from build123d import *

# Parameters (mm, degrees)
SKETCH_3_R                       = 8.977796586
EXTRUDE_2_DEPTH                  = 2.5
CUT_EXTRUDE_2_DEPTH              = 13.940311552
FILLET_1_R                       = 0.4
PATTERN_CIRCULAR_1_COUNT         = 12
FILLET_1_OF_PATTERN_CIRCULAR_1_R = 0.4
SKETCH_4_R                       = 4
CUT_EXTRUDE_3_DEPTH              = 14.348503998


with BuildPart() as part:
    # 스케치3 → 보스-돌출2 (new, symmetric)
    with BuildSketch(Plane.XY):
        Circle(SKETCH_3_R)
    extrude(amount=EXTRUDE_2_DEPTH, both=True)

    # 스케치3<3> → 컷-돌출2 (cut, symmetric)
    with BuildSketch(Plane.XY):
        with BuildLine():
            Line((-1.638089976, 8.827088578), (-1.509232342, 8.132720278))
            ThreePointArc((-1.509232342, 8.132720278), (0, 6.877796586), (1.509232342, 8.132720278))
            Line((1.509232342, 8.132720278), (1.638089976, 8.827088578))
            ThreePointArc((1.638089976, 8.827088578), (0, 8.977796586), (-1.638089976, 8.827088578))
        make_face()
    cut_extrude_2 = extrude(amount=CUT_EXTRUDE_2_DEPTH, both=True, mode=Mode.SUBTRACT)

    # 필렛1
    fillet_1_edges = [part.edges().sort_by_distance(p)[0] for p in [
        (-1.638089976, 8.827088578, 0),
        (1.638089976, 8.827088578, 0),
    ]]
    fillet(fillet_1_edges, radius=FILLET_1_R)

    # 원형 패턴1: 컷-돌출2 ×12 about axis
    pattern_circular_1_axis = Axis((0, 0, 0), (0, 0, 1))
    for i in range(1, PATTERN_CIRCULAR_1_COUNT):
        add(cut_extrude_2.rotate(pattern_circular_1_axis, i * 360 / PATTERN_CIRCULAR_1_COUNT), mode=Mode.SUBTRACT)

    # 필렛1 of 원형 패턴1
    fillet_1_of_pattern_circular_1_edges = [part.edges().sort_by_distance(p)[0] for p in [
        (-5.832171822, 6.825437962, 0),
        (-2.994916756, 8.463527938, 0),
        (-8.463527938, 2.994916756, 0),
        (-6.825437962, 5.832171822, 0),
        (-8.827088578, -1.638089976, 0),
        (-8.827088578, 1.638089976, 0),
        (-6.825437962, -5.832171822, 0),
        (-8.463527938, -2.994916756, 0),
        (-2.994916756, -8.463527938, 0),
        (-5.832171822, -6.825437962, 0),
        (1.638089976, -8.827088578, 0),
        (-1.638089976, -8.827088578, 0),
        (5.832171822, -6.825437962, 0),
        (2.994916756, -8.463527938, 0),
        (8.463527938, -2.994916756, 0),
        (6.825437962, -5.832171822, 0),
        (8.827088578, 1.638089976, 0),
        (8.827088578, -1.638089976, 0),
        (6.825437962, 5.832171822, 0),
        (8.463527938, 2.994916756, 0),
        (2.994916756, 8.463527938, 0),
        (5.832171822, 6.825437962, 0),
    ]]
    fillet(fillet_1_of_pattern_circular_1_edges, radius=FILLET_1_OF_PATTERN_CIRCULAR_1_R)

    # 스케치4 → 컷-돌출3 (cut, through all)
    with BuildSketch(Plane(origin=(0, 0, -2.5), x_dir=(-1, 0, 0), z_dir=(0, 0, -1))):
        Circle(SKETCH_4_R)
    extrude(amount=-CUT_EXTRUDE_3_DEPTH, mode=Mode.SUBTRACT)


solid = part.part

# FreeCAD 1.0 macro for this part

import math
import FreeCAD as App
import Part
import Sketcher
Q = App.Units.Quantity


def edges_at(feature, points):
    """Names of the edges that pass closest to the given points."""
    edges = feature.Shape.Edges
    near = lambda p: min(range(len(edges)), key=lambda i: edges[i].distToShape(Part.Vertex(*p))[0])
    return sorted({f"Edge{near(p) + 1}" for p in points})

doc = App.newDocument("Part")
body = doc.addObject("PartDesign::Body", "Body")

sketch1 = body.newObject("Sketcher::SketchObject", "Sketch")
sketch1.AttachmentSupport = (doc.getObject("XY_Plane"), [""])
sketch1.MapMode = "FlatFace"
sketch1.addGeometry(Part.Circle(App.Vector(0, 0, 0), App.Vector(0, 0, 1), 9), False)
sketch1.addConstraint([
    Sketcher.Constraint("Coincident", 0, 3, -1, 1),
    Sketcher.Constraint("Diameter", 0, Q("17.955593 mm")),
])
pad1 = body.newObject("PartDesign::Pad", "Pad")
pad1.Profile = sketch1
pad1.Length = 5
pad1.Midplane = True

sketch2 = body.newObject("Sketcher::SketchObject", "Sketch001")
sketch2.AttachmentSupport = (doc.getObject("XY_Plane"), [""])
sketch2.MapMode = "FlatFace"
sketch2.addGeometry([
    Part.LineSegment(App.Vector(-1.6, 8.8, 0), App.Vector(-1.5, 8.1, 0)),
    Part.ArcOfCircle(Part.Circle(App.Vector(0, 8.4, 0), App.Vector(0, 0, 1), 1.5), math.radians(-169), math.radians(-11)),
    Part.LineSegment(App.Vector(1.5, 8.1, 0), App.Vector(1.6, 8.8, 0)),
    Part.ArcOfCircle(Part.Circle(App.Vector(0, 0, 0), App.Vector(0, 0, 1), 9), math.radians(79), math.radians(101)),
], False)
sketch2.addConstraint([
    Sketcher.Constraint("Tangent", 0, 2, 1, 1),
    Sketcher.Constraint("Tangent", 1, 2, 2, 1),
    Sketcher.Constraint("Coincident", 2, 2, 3, 1),
    Sketcher.Constraint("Coincident", 3, 2, 0, 1),
    Sketcher.Constraint("Coincident", 3, 3, -1, 1),
    Sketcher.Constraint("Symmetric", 0, 2, 1, 2, -2),
    Sketcher.Constraint("Radius", 1, Q("1.535 mm")),
    Sketcher.Constraint("Radius", 3, Q("8.977797 mm")),
    Sketcher.Constraint("DistanceY", -1, 1, 0, 2, Q("8.13272 mm")),
    Sketcher.Constraint("DistanceX", -1, 1, 2, 2, Q("1.63809 mm")),
])
pocket1 = body.newObject("PartDesign::Pocket", "Pocket")
pocket1.Profile = sketch2
pocket1.Length = 27.880623
pocket1.Midplane = True
doc.recompute()

fillet = body.newObject("PartDesign::Fillet", "Fillet")
fillet.Base = (pocket1, edges_at(pocket1, [(-1.638, 8.827, 0), (1.638, 8.827, 0)]))
fillet.Radius = 0.4
doc.recompute()

polarpattern = body.newObject("PartDesign::PolarPattern", "PolarPattern")
polarpattern.Originals = [pocket1]
polarpattern.Axis = (doc.getObject("Z_Axis"), [""])
polarpattern.Angle = 360
polarpattern.Occurrences = 12
body.Tip = polarpattern
doc.recompute()

fillet2 = body.newObject("PartDesign::Fillet", "Fillet001")
fillet2.Base = (polarpattern, edges_at(polarpattern, [
    (-5.832, 6.825, 0),
    (-2.995, 8.464, 0),
    (-8.464, 2.995, 0),
    (-6.825, 5.832, 0),
    (-8.827, -1.638, 0),
    (-8.827, 1.638, 0),
    (-6.825, -5.832, 0),
    (-8.464, -2.995, 0),
    (-2.995, -8.464, 0),
    (-5.832, -6.825, 0),
    (1.638, -8.827, 0),
    (-1.638, -8.827, 0),
    (5.832, -6.825, 0),
    (2.995, -8.464, 0),
    (8.464, -2.995, 0),
    (6.825, -5.832, 0),
    (8.827, 1.638, 0),
    (8.827, -1.638, 0),
    (6.825, 5.832, 0),
    (8.464, 2.995, 0),
    (2.995, 8.464, 0),
    (5.832, 6.825, 0),
]))
fillet2.Radius = 0.4

sketch3 = body.newObject("Sketcher::SketchObject", "Sketch002")
sketch3.AttachmentSupport = (doc.getObject("XY_Plane"), [""])
sketch3.MapMode = "FlatFace"
sketch3.AttachmentOffset = App.Placement(App.Vector(0, 0, -2.5), App.Rotation())
sketch3.addGeometry(Part.Circle(App.Vector(0, 0, 0), App.Vector(0, 0, 1), 4), False)
sketch3.addConstraint([
    Sketcher.Constraint("Coincident", 0, 3, -1, 1),
    Sketcher.Constraint("Diameter", 0, Q("8 mm")),
])
pocket2 = body.newObject("PartDesign::Pocket", "Pocket001")
pocket2.Profile = sketch3
pocket2.Type = "ThroughAll"
pocket2.Reversed = True

doc.recompute()
